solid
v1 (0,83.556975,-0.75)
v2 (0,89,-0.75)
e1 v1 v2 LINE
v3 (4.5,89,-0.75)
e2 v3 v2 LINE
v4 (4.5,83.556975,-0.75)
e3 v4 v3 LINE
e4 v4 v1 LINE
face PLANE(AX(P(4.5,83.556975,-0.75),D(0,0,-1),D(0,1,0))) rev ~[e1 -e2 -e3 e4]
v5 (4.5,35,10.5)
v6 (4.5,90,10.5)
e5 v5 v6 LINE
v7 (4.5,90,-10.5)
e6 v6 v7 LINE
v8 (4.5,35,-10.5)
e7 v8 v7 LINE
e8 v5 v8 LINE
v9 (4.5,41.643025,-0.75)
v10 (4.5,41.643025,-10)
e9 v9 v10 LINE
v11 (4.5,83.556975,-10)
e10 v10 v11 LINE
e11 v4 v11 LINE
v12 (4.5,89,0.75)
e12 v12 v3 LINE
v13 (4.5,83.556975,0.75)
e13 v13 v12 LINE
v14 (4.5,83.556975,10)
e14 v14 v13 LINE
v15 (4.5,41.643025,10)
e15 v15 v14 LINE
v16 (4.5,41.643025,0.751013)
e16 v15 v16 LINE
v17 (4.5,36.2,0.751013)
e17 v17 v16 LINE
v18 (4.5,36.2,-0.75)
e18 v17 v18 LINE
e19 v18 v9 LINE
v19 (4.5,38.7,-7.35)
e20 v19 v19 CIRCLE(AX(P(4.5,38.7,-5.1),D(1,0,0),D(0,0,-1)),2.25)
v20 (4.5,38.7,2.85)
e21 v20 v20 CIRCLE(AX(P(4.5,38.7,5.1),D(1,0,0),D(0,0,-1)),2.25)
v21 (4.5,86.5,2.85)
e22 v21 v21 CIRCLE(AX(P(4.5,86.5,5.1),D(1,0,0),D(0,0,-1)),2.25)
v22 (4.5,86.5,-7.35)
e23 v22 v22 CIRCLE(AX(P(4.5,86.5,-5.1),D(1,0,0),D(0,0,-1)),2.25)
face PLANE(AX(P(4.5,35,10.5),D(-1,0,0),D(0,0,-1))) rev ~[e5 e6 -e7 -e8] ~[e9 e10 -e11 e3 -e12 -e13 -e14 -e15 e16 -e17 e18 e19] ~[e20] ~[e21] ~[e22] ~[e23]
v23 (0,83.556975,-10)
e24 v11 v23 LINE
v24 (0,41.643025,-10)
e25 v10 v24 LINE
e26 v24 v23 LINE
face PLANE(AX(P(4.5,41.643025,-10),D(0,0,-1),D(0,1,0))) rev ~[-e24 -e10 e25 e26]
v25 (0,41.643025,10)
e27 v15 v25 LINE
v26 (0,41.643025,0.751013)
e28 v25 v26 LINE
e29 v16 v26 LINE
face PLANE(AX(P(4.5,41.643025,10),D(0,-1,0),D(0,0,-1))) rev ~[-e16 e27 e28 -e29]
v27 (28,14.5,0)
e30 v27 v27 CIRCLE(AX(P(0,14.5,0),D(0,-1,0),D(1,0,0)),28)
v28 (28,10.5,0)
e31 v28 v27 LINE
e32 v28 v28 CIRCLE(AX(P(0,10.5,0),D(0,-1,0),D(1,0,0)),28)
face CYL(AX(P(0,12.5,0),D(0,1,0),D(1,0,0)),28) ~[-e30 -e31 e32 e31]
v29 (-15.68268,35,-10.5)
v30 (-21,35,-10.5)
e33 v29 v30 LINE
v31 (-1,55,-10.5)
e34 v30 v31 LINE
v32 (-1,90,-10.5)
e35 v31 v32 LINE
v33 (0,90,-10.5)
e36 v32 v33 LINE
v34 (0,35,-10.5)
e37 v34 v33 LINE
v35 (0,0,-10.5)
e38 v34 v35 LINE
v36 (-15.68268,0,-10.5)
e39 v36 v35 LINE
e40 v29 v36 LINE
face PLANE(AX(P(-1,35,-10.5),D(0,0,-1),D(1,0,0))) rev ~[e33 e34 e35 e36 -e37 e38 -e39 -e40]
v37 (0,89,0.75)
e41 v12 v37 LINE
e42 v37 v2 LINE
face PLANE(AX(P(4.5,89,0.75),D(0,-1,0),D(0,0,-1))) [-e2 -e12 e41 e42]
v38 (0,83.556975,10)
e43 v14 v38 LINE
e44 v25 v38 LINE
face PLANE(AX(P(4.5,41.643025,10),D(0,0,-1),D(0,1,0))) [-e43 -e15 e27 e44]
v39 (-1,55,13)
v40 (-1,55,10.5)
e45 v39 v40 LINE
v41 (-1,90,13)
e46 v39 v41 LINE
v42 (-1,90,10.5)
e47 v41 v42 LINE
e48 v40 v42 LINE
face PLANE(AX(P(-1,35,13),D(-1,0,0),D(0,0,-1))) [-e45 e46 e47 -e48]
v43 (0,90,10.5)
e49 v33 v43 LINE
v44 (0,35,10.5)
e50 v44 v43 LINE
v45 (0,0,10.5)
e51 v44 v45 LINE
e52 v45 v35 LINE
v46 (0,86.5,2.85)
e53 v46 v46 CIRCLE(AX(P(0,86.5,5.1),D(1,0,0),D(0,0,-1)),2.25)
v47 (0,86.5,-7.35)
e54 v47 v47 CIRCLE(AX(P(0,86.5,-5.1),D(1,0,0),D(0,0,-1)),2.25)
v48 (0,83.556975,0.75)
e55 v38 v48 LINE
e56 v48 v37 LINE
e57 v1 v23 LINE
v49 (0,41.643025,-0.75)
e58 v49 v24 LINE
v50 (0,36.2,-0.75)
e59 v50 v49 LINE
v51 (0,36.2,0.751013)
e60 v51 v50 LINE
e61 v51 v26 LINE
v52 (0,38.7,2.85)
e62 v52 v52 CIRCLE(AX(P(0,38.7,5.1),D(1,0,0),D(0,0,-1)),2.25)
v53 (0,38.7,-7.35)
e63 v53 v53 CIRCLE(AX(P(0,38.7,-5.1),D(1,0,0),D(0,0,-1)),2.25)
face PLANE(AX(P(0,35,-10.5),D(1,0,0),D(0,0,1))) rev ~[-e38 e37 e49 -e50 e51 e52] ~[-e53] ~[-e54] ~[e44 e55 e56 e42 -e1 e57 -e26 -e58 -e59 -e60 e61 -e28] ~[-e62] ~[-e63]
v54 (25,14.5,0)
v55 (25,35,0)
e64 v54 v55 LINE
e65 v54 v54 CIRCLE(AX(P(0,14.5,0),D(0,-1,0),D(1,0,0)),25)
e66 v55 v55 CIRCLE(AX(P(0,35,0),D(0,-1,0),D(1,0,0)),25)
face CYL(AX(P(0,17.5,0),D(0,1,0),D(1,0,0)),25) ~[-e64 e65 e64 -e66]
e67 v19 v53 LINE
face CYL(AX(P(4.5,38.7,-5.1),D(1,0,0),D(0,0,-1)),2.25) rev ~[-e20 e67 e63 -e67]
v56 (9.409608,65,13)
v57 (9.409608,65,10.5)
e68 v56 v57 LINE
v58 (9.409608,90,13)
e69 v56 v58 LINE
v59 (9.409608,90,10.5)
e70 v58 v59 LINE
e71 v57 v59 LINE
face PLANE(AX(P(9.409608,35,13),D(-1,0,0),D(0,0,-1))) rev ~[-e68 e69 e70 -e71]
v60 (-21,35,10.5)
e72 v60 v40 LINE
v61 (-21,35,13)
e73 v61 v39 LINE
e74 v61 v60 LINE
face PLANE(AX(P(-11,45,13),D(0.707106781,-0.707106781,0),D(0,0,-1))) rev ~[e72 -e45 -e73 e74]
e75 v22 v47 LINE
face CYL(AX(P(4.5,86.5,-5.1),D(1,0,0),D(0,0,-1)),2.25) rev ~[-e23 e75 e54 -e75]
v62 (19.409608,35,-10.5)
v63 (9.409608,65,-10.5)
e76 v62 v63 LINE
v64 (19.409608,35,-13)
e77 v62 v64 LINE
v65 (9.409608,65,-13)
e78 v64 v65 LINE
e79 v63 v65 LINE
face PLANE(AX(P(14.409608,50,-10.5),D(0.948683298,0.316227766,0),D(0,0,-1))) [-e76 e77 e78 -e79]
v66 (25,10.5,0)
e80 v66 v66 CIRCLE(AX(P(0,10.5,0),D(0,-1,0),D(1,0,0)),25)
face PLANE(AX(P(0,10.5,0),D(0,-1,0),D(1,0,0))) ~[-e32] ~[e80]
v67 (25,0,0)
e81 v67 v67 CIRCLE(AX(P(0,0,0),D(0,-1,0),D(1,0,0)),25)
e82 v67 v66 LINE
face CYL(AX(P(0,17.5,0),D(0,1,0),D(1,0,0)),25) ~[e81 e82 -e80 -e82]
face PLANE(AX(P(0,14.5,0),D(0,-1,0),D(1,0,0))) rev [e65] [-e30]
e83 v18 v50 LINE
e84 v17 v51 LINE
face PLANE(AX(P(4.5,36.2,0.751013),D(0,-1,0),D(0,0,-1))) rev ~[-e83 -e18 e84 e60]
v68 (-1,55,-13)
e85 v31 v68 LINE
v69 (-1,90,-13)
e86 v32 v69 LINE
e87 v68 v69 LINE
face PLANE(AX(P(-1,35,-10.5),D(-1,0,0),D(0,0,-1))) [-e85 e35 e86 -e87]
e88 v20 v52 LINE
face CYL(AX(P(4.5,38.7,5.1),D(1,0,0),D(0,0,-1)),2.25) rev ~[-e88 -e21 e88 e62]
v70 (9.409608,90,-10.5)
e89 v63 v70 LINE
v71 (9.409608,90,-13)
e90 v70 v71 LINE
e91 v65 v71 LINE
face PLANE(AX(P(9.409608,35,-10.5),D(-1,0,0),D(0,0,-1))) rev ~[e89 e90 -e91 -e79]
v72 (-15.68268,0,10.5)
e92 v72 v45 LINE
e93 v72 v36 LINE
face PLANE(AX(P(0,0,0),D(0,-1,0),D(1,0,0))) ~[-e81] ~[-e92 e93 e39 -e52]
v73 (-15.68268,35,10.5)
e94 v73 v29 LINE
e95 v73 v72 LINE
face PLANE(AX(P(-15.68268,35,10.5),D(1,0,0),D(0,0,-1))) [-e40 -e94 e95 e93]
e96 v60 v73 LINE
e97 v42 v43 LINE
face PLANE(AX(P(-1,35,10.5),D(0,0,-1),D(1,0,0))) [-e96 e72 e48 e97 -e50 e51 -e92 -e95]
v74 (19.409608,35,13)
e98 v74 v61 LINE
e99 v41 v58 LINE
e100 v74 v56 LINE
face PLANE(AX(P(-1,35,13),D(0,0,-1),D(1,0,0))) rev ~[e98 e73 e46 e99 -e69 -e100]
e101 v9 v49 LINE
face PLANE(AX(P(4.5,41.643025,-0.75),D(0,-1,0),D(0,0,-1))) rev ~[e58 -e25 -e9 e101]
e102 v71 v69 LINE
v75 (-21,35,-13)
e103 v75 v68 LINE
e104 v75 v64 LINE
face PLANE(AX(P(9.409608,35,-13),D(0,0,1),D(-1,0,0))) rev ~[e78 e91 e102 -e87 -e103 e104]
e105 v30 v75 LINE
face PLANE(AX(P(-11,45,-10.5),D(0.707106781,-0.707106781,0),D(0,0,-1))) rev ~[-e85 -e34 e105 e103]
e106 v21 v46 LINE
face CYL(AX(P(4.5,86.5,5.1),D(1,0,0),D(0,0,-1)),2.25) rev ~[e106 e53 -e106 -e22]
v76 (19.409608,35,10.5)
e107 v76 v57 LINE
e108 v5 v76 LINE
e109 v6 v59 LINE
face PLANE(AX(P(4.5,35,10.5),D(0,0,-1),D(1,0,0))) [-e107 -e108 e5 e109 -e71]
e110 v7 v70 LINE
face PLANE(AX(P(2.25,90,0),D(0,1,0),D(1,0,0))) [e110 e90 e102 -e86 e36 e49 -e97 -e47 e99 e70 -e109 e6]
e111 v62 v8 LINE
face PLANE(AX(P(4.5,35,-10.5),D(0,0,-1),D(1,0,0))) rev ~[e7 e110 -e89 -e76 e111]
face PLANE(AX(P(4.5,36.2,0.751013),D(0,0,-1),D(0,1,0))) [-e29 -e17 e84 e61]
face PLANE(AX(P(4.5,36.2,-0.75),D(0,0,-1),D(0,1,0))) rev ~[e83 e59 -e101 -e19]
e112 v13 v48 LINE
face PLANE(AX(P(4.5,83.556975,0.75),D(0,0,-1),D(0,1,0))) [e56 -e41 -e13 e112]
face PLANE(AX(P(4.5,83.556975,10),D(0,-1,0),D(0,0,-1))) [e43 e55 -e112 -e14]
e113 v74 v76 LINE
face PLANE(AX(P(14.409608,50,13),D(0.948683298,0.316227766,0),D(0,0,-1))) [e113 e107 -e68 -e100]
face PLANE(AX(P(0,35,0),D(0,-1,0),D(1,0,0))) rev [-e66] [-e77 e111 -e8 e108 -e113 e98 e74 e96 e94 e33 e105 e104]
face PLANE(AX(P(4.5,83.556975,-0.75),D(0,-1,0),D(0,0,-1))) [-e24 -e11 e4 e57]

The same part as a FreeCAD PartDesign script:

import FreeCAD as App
import Part
import Sketcher

V = App.Vector


def edges_at(feature, points):
    """Names of the edges that pass closest to the given points."""
    edges = feature.Shape.Edges
    near = lambda p: min(range(len(edges)), key=lambda i: edges[i].distToShape(Part.Vertex(*p))[0])
    return sorted({f"Edge{near(p) + 1}" for p in points})


def add_polygon(sketch, points):
    """Adds a closed chain of lines whose ends are joined by coincident constraints."""
    first, n = sketch.GeometryCount, len(points)
    for a, b in zip(points, points[1:] + points[:1]):
        sketch.addGeometry(Part.LineSegment(App.Vector(*a, 0), App.Vector(*b, 0)), False)
    for i in range(n):
        sketch.addConstraint(Sketcher.Constraint("Coincident", first + i, 2, first + (i + 1) % n, 1))

doc = App.newDocument("Part")
params = doc.addObject("Spreadsheet::Sheet", "Params")
for row, (alias, value) in enumerate([
    ("sketch1_width", "3 mm"),
    ("sketch1_width2", "25 mm"),
    ("sketch1_height", "4 mm"),
    ("sketch1_height2", "35 mm"),
    ("sketch1_height3", "20.5 mm"),
    ("revolution_angle", "360 deg"),
    ("sketch2_width", "1 mm"),
    ("sketch2_height", "21 mm"),
    ("sketch2_height2", "2.5 mm"),
    ("pad1_length", "55 mm"),
    ("chamfer_size", "10 mm"),
    ("chamfer_size2", "30 mm"),
    ("chamfer2_size", "20 mm"),
    ("sketch3_diameter", "4.5 mm"),
    ("sketch3_height", "1.5 mm"),
    ("pocket1_length", "55 mm"),
    ("sketch4_height", "21 mm"),
], start=1):
    params.set(f"A{row}", alias)
    params.set(f"B{row}", "=" + value)
    params.setAlias(f"B{row}", alias)

body = doc.addObject("PartDesign::Body", "Body")

# Sketch on XY plane
sketch1 = body.newObject("Sketcher::SketchObject", "Sketch")
sketch1.AttachmentSupport = (doc.getObject("XY_Plane"), [""])
sketch1.MapMode = "FlatFace"
add_polygon(sketch1, [(25, 10.5), (28, 10.5), (28, 14.5), (25, 14.5), (25, 35), (0, 35), (0, 0), (25, 0)])  # lines 0-7
sketch1.addConstraint(Sketcher.Constraint("Horizontal", 0))
sketch1.addConstraint(Sketcher.Constraint("Vertical", 1))
sketch1.addConstraint(Sketcher.Constraint("Horizontal", 2))
sketch1.addConstraint(Sketcher.Constraint("Vertical", 3))
sketch1.addConstraint(Sketcher.Constraint("Horizontal", 4))
sketch1.addConstraint(Sketcher.Constraint("Vertical", 5))
sketch1.addConstraint(Sketcher.Constraint("Horizontal", 6))
sketch1.addConstraint(Sketcher.Constraint("Vertical", 7))
sketch1.addConstraint(Sketcher.Constraint("Coincident", 5, 2, -1, 1))
sketch1.addConstraint(Sketcher.Constraint("Vertical", 3, 2, 6, 2))
sketch1.addConstraint(Sketcher.Constraint("DistanceX", 0, 1, 0, 2, 3.0))
sketch1.addConstraint(Sketcher.Constraint("DistanceX", 4, 2, 4, 1, 25.0))
sketch1.addConstraint(Sketcher.Constraint("DistanceY", 1, 1, 1, 2, 4.0))
sketch1.addConstraint(Sketcher.Constraint("DistanceY", 5, 2, 5, 1, 35.0))
sketch1.addConstraint(Sketcher.Constraint("DistanceY", 3, 1, 3, 2, 20.5))
sketch1.setExpression("Constraints[18]", "Params.sketch1_width")
sketch1.setExpression("Constraints[19]", "Params.sketch1_width2")
sketch1.setExpression("Constraints[20]", "Params.sketch1_height")
sketch1.setExpression("Constraints[21]", "Params.sketch1_height2")
sketch1.setExpression("Constraints[22]", "Params.sketch1_height3")
revolution = body.newObject("PartDesign::Revolution", "Revolution")
revolution.Profile = sketch1
revolution.ReferenceAxis = (sketch1, ["V_Axis"])
revolution.setExpression("Angle", "Params.revolution_angle")

# Sketch on XZ plane
sketch2 = body.newObject("Sketcher::SketchObject", "Sketch001")
sketch2.AttachmentSupport = (doc.getObject("XZ_Plane"), [""])
sketch2.MapMode = "FlatFace"
sketch2.AttachmentOffset = App.Placement(V(0, 0, -35), App.Rotation())
add_polygon(sketch2, [(0, -10.5), (0, 10.5), (-1, 10.5), (-1, 13), (9.409608, 13), (9.409608, 10.5), (4.5, 10.5), (4.5, -10.5), (9.409608, -10.5), (9.409608, -13), (-1, -13), (-1, -10.5)])  # lines 0-11
sketch2.addConstraint(Sketcher.Constraint("Vertical", 0))
sketch2.addConstraint(Sketcher.Constraint("Horizontal", 1))
sketch2.addConstraint(Sketcher.Constraint("Vertical", 2))
sketch2.addConstraint(Sketcher.Constraint("Horizontal", 3))
sketch2.addConstraint(Sketcher.Constraint("Vertical", 4))
sketch2.addConstraint(Sketcher.Constraint("Horizontal", 5))
sketch2.addConstraint(Sketcher.Constraint("Vertical", 6))
sketch2.addConstraint(Sketcher.Constraint("Horizontal", 7))
sketch2.addConstraint(Sketcher.Constraint("Vertical", 8))
sketch2.addConstraint(Sketcher.Constraint("Horizontal", 9))
sketch2.addConstraint(Sketcher.Constraint("Vertical", 10))
sketch2.addConstraint(Sketcher.Constraint("Horizontal", 11))
sketch2.addConstraint(Sketcher.Constraint("Symmetric", 0, 2, 11, 2, -1, 1))
sketch2.addConstraint(Sketcher.Constraint("Symmetric", 4, 2, 7, 2, -1))
sketch2.addConstraint(Sketcher.Constraint("Symmetric", 2, 2, 9, 2, -1))
sketch2.addConstraint(Sketcher.Constraint("Horizontal", 1, 2, 4, 2))
sketch2.addConstraint(Sketcher.Constraint("DistanceX", 1, 2, 1, 1, 1.0))
sketch2.addConstraint(Sketcher.Constraint("DistanceY", 0, 1, 0, 2, 21.0))
sketch2.addConstraint(Sketcher.Constraint("DistanceY", 2, 1, 2, 2, 2.5))
sketch2.addConstraint(Sketcher.Constraint("DistanceX", -1, 1, 5, 2, 4.5))
sketch2.addConstraint(Sketcher.Constraint("DistanceX", 3, 1, 3, 2, 10.409608))
sketch2.setExpression("Constraints[28]", "Params.sketch2_width")
sketch2.setExpression("Constraints[29]", "Params.sketch2_height")
sketch2.setExpression("Constraints[30]", "Params.sketch2_height2")
pad1 = body.newObject("PartDesign::Pad", "Pad")
pad1.Profile = sketch2
pad1.setExpression("Length", "Params.pad1_length")
pad1.Reversed = True
doc.recompute()

chamfer = body.newObject("PartDesign::Chamfer", "Chamfer")
chamfer.Base = (pad1, edges_at(pad1, [(9.41, 35, 11.75), (9.41, 35, -11.75)]))
chamfer.ChamferType = "Two distances"
chamfer.setExpression("Size", "Params.chamfer_size")
chamfer.setExpression("Size2", "Params.chamfer_size2")
doc.recompute()

chamfer2 = body.newObject("PartDesign::Chamfer", "Chamfer001")
chamfer2.Base = (chamfer, edges_at(chamfer, [(-1, 35, -11.75), (-1, 35, 11.75)]))
chamfer2.setExpression("Size", "Params.chamfer2_size")

# Sketch on YZ plane
sketch3 = body.newObject("Sketcher::SketchObject", "Sketch002")
sketch3.AttachmentSupport = (doc.getObject("YZ_Plane"), [""])
sketch3.MapMode = "FlatFace"
sketch3.AttachmentOffset = App.Placement(V(0, 0, 4.5), App.Rotation())
sketch3.addGeometry(Part.Circle(V(86.5, 5.1, 0), V(0, 0, 1), 2.25), False)  # 0
sketch3.addGeometry(Part.Circle(V(86.5, -5.1, 0), V(0, 0, 1), 2.25), False)  # 1
sketch3.addGeometry(Part.Circle(V(38.7, 5.1, 0), V(0, 0, 1), 2.25), False)  # 2
sketch3.addGeometry(Part.Circle(V(38.7, -5.1, 0), V(0, 0, 1), 2.25), False)  # 3
add_polygon(sketch3, [(83.556975, 10), (41.643025, 10), (41.643025, 0.751013), (36.2, 0.751013), (36.2, -0.75), (41.643025, -0.75), (41.643025, -10), (83.556975, -10), (83.556975, -0.75), (89, -0.75), (89, 0.75), (83.556975, 0.75)])  # lines 4-15
sketch3.addConstraint(Sketcher.Constraint("Horizontal", 4))
sketch3.addConstraint(Sketcher.Constraint("Vertical", 5))
sketch3.addConstraint(Sketcher.Constraint("Horizontal", 6))
sketch3.addConstraint(Sketcher.Constraint("Vertical", 7))
sketch3.addConstraint(Sketcher.Constraint("Horizontal", 8))
sketch3.addConstraint(Sketcher.Constraint("Vertical", 9))
sketch3.addConstraint(Sketcher.Constraint("Horizontal", 10))
sketch3.addConstraint(Sketcher.Constraint("Vertical", 11))
sketch3.addConstraint(Sketcher.Constraint("Horizontal", 12))
sketch3.addConstraint(Sketcher.Constraint("Vertical", 13))
sketch3.addConstraint(Sketcher.Constraint("Horizontal", 14))
sketch3.addConstraint(Sketcher.Constraint("Vertical", 15))
sketch3.addConstraint(Sketcher.Constraint("Equal", 0, 1))
sketch3.addConstraint(Sketcher.Constraint("Equal", 1, 2))
sketch3.addConstraint(Sketcher.Constraint("Equal", 2, 3))
sketch3.addConstraint(Sketcher.Constraint("Symmetric", 0, 3, 1, 3, -1))
sketch3.addConstraint(Sketcher.Constraint("Symmetric", 2, 3, 3, 3, -1))
sketch3.addConstraint(Sketcher.Constraint("Symmetric", 4, 2, 9, 2, -1))
sketch3.addConstraint(Sketcher.Constraint("Symmetric", 11, 2, 14, 2, -1))
sketch3.addConstraint(Sketcher.Constraint("Horizontal", 0, 3, 2, 3))
sketch3.addConstraint(Sketcher.Constraint("Horizontal", 8, 2, 11, 2))
sketch3.addConstraint(Sketcher.Constraint("Equal", 8, 12))
sketch3.addConstraint(Sketcher.Constraint("Diameter", 0, 4.5))
sketch3.addConstraint(Sketcher.Constraint("DistanceY", 13, 1, 13, 2, 1.5))
sketch3.addConstraint(Sketcher.Constraint("DistanceY", -1, 1, 4, 2, 10.0))
sketch3.addConstraint(Sketcher.Constraint("DistanceX", -1, 1, 12, 2, 89.0))
sketch3.addConstraint(Sketcher.Constraint("DistanceX", -1, 1, 0, 3, 86.5))
sketch3.addConstraint(Sketcher.Constraint("DistanceY", -1, 1, 0, 3, 5.1))
sketch3.addConstraint(Sketcher.Constraint("DistanceX", -1, 1, 2, 3, 38.7))
sketch3.addConstraint(Sketcher.Constraint("DistanceX", -1, 1, 6, 2, 36.2))
sketch3.addConstraint(Sketcher.Constraint("DistanceX", 4, 2, 4, 1, 41.91395))
sketch3.addConstraint(Sketcher.Constraint("DistanceY", 5, 2, 5, 1, 9.248987))
sketch3.setExpression("Constraints[34]", "Params.sketch3_diameter")
sketch3.setExpression("Constraints[35]", "Params.sketch3_height")
pocket1 = body.newObject("PartDesign::Pocket", "Pocket")
pocket1.Profile = sketch3
pocket1.setExpression("Length", "Params.pocket1_length")

# Sketch on XZ plane
sketch4 = body.newObject("Sketcher::SketchObject", "Sketch003")
sketch4.AttachmentSupport = (doc.getObject("XZ_Plane"), [""])
sketch4.MapMode = "FlatFace"
sketch4.AttachmentOffset = App.Placement(V(0, 0, -35), App.Rotation())
add_polygon(sketch4, [(-15.68268, -10.5), (-15.68268, 10.5), (0, 10.5), (0, -10.5)])  # lines 0-3
sketch4.addConstraint(Sketcher.Constraint("Vertical", 0))
sketch4.addConstraint(Sketcher.Constraint("Horizontal", 1))
sketch4.addConstraint(Sketcher.Constraint("Vertical", 2))
sketch4.addConstraint(Sketcher.Constraint("Horizontal", 3))
sketch4.addConstraint(Sketcher.Constraint("Symmetric", 1, 2, 2, 2, -1, 1))
sketch4.addConstraint(Sketcher.Constraint("DistanceY", 0, 1, 0, 2, 21.0))
sketch4.addConstraint(Sketcher.Constraint("DistanceX", 1, 1, 1, 2, 15.68268))
sketch4.setExpression("Constraints[9]", "Params.sketch4_height")
pocket2 = body.newObject("PartDesign::Pocket", "Pocket001")
pocket2.Profile = sketch4
pocket2.Type = "ThroughAll"
pocket2.Reversed = True

doc.recompute()
